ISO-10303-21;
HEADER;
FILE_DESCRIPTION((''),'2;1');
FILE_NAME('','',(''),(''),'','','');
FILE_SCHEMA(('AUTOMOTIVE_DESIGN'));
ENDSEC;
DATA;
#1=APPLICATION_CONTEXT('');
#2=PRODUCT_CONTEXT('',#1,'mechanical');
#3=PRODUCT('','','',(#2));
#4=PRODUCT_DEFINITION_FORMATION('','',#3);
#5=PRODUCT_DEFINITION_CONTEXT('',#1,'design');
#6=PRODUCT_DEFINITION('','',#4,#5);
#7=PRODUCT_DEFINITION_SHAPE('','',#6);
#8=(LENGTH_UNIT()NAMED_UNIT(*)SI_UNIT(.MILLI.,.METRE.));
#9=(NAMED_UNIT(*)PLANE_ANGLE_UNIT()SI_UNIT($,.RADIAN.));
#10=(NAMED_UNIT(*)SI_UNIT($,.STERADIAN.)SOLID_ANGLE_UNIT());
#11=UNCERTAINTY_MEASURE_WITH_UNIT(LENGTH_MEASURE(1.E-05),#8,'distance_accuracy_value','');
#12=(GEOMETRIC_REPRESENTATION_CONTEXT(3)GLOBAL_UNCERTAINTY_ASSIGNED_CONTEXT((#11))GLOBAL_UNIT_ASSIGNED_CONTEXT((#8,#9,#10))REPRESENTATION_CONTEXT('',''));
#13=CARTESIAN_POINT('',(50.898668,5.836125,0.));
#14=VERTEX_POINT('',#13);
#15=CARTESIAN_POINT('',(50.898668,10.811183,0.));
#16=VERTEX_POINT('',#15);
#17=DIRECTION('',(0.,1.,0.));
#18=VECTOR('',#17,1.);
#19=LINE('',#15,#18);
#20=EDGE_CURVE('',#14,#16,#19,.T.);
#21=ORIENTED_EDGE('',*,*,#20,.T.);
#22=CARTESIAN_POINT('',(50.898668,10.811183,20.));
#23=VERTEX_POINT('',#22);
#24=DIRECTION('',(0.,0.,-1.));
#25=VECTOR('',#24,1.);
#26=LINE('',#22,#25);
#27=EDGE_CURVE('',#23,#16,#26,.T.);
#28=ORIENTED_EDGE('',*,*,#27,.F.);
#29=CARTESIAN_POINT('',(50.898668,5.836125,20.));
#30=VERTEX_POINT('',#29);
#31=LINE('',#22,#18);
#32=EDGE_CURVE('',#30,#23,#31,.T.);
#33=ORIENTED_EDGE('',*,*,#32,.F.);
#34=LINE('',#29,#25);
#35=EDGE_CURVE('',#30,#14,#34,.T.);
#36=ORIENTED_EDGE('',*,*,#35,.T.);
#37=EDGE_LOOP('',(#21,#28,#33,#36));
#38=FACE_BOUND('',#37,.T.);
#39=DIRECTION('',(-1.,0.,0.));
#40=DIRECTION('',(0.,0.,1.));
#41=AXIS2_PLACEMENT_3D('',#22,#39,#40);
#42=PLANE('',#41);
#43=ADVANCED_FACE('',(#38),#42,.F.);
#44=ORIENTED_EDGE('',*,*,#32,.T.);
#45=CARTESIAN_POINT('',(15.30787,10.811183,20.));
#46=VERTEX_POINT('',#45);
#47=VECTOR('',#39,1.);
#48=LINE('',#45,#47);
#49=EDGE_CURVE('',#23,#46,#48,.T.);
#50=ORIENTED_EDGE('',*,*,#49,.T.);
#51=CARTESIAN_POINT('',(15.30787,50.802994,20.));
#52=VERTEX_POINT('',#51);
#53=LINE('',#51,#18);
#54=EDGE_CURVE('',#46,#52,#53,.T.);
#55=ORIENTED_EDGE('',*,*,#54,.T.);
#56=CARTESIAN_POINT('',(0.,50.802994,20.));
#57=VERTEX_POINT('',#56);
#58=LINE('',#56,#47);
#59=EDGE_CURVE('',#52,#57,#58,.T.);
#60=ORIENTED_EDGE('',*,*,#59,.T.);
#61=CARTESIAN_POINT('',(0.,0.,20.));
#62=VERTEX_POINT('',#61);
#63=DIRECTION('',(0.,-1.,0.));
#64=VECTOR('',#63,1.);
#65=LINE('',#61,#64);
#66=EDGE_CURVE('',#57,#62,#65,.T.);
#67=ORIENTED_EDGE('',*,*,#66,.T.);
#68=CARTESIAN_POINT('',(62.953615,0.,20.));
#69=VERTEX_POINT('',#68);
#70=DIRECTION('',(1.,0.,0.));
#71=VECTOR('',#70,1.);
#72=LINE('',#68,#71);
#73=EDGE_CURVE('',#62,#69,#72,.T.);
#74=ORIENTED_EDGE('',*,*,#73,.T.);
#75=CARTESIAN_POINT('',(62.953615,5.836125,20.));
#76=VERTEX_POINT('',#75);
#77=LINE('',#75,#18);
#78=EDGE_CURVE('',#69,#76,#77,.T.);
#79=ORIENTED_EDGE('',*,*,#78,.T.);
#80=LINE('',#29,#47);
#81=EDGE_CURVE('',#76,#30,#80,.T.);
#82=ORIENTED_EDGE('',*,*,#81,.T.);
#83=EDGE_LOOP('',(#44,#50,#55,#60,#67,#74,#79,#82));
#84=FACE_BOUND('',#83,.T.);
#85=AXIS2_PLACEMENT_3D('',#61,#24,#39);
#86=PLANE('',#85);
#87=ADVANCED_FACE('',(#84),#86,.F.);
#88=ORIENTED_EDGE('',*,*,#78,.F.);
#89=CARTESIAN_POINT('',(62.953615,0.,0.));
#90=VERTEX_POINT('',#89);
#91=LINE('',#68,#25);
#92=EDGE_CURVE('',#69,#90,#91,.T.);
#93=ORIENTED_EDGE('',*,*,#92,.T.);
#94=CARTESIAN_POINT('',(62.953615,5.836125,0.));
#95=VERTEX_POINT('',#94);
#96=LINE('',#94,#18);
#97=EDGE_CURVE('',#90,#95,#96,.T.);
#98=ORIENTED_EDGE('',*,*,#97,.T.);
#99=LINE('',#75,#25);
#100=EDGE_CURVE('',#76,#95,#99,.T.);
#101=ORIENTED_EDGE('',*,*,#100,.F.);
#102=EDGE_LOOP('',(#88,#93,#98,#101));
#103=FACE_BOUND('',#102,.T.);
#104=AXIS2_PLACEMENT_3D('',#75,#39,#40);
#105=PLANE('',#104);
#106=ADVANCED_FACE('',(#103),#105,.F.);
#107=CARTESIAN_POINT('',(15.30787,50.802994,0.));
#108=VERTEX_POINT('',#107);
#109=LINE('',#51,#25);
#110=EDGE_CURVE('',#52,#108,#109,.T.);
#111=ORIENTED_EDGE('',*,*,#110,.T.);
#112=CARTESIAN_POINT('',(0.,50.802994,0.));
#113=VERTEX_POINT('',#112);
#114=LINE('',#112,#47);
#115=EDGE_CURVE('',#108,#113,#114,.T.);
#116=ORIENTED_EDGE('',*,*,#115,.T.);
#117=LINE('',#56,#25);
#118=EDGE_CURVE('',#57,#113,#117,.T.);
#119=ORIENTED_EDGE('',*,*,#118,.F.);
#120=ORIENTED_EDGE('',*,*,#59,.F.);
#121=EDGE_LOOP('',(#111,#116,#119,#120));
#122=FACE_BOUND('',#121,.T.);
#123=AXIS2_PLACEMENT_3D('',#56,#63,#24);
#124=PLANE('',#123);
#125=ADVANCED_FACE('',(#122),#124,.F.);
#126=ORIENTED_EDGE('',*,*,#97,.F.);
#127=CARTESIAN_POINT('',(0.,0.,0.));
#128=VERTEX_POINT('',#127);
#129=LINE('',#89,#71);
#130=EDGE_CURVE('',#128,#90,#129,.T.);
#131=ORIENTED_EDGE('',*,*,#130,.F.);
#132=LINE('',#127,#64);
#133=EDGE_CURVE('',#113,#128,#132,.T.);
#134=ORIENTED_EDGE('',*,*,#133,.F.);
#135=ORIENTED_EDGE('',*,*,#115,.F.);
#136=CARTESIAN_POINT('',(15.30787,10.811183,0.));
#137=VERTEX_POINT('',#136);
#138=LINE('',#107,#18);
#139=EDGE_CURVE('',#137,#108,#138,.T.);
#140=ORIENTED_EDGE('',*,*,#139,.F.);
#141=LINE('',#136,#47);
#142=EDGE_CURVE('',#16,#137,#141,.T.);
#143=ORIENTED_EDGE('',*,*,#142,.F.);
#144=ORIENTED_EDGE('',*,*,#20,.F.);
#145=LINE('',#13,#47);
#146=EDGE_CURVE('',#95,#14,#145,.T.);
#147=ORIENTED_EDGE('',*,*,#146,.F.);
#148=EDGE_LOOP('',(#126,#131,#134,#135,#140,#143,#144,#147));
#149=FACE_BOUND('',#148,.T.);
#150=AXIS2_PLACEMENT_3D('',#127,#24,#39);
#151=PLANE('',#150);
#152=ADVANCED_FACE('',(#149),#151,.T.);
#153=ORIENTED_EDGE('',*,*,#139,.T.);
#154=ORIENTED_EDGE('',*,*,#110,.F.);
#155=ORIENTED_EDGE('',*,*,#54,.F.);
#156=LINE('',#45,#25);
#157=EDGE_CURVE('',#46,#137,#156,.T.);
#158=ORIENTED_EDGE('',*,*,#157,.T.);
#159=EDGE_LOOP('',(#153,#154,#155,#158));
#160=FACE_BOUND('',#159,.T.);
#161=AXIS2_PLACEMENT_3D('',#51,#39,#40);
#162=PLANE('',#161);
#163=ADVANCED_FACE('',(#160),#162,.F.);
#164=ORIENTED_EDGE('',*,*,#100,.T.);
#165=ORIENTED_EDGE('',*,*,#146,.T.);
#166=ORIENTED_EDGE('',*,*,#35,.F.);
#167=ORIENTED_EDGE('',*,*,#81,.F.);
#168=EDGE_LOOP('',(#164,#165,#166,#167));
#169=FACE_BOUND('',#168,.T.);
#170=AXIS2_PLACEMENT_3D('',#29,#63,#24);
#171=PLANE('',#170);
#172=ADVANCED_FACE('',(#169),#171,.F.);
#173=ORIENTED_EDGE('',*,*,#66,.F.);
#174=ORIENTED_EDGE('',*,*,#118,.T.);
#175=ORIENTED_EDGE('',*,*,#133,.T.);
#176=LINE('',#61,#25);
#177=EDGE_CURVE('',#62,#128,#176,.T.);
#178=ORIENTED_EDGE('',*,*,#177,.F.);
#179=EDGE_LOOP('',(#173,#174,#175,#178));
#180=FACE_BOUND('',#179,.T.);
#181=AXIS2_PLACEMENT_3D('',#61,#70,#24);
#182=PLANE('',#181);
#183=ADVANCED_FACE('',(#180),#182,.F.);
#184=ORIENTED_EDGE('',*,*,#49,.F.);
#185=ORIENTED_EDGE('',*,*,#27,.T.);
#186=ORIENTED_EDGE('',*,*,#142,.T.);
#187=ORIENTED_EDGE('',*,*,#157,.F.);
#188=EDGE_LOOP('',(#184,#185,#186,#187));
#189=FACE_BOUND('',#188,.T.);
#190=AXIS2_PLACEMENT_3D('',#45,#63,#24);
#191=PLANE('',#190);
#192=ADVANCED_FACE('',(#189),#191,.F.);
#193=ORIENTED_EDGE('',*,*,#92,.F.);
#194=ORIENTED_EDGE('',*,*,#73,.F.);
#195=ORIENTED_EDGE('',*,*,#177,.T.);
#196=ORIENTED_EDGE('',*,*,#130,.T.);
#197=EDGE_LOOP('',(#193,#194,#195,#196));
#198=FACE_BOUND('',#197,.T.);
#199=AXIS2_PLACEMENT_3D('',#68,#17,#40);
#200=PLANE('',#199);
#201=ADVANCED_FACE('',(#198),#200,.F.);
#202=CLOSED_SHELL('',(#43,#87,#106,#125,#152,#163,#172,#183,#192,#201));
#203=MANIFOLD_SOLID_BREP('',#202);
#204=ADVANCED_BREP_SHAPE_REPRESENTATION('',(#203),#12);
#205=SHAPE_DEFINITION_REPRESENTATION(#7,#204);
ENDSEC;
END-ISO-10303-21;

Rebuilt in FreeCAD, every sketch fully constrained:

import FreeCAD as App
import Part
import Sketcher
from FreeCAD import Vector
Q = App.Units.Quantity


def add_polygon(sketch, points):
    """Adds a closed chain of lines whose ends are joined by coincident constraints."""
    first, n = sketch.GeometryCount, len(points)
    for a, b in zip(points, points[1:] + points[:1]):
        sketch.addGeometry(Part.LineSegment(App.Vector(*a, 0), App.Vector(*b, 0)), False)
    for i in range(n):
        sketch.addConstraint(Sketcher.Constraint("Coincident", first + i, 2, first + (i + 1) % n, 1))

doc = App.newDocument("Part")
params = doc.addObject("Spreadsheet::Sheet", "Params")
for row, (alias, value) in enumerate([
    ("pad1_length", "20 mm"),
], start=1):
    params.set(f"A{row}", alias)
    params.set(f"B{row}", "=" + value)
    params.setAlias(f"B{row}", alias)

body = doc.addObject("PartDesign::Body", "Body")

# Sketch on XY plane
sketch1 = body.newObject("Sketcher::SketchObject", "Sketch")
sketch1.AttachmentSupport = (doc.getObject("XY_Plane"), [""])
sketch1.MapMode = "FlatFace"
add_polygon(sketch1, [(0, 50.8), (0, 0), (63, 0), (63, 5.8), (50.9, 5.8), (50.9, 10.8), (15.3, 10.8), (15.3, 50.8)])  # lines 0-7
sketch1.addConstraint([
    Sketcher.Constraint("Vertical", 0),
    Sketcher.Constraint("Horizontal", 1),
    Sketcher.Constraint("Vertical", 2),
    Sketcher.Constraint("Horizontal", 3),
    Sketcher.Constraint("Vertical", 4),
    Sketcher.Constraint("Horizontal", 5),
    Sketcher.Constraint("Vertical", 6),
    Sketcher.Constraint("Horizontal", 7),
    Sketcher.Constraint("Coincident", 0, 2, -1, 1),
    Sketcher.Constraint("DistanceX", 7, 2, 7, 1, Q("15.30787 mm")),
    Sketcher.Constraint("DistanceY", 6, 1, 6, 2, Q("39.99181 mm")),
    Sketcher.Constraint("DistanceX", 1, 1, 1, 2, Q("62.953615 mm")),
    Sketcher.Constraint("DistanceX", 3, 2, 3, 1, Q("12.054948 mm")),
    Sketcher.Constraint("DistanceY", 0, 2, 0, 1, Q("50.802994 mm")),
    Sketcher.Constraint("DistanceY", 2, 1, 2, 2, Q("5.836125 mm")),
])
pad1 = body.newObject("PartDesign::Pad", "Pad")
pad1.Profile = sketch1
pad1.setExpression("Length", "Params.pad1_length")

doc.recompute()
